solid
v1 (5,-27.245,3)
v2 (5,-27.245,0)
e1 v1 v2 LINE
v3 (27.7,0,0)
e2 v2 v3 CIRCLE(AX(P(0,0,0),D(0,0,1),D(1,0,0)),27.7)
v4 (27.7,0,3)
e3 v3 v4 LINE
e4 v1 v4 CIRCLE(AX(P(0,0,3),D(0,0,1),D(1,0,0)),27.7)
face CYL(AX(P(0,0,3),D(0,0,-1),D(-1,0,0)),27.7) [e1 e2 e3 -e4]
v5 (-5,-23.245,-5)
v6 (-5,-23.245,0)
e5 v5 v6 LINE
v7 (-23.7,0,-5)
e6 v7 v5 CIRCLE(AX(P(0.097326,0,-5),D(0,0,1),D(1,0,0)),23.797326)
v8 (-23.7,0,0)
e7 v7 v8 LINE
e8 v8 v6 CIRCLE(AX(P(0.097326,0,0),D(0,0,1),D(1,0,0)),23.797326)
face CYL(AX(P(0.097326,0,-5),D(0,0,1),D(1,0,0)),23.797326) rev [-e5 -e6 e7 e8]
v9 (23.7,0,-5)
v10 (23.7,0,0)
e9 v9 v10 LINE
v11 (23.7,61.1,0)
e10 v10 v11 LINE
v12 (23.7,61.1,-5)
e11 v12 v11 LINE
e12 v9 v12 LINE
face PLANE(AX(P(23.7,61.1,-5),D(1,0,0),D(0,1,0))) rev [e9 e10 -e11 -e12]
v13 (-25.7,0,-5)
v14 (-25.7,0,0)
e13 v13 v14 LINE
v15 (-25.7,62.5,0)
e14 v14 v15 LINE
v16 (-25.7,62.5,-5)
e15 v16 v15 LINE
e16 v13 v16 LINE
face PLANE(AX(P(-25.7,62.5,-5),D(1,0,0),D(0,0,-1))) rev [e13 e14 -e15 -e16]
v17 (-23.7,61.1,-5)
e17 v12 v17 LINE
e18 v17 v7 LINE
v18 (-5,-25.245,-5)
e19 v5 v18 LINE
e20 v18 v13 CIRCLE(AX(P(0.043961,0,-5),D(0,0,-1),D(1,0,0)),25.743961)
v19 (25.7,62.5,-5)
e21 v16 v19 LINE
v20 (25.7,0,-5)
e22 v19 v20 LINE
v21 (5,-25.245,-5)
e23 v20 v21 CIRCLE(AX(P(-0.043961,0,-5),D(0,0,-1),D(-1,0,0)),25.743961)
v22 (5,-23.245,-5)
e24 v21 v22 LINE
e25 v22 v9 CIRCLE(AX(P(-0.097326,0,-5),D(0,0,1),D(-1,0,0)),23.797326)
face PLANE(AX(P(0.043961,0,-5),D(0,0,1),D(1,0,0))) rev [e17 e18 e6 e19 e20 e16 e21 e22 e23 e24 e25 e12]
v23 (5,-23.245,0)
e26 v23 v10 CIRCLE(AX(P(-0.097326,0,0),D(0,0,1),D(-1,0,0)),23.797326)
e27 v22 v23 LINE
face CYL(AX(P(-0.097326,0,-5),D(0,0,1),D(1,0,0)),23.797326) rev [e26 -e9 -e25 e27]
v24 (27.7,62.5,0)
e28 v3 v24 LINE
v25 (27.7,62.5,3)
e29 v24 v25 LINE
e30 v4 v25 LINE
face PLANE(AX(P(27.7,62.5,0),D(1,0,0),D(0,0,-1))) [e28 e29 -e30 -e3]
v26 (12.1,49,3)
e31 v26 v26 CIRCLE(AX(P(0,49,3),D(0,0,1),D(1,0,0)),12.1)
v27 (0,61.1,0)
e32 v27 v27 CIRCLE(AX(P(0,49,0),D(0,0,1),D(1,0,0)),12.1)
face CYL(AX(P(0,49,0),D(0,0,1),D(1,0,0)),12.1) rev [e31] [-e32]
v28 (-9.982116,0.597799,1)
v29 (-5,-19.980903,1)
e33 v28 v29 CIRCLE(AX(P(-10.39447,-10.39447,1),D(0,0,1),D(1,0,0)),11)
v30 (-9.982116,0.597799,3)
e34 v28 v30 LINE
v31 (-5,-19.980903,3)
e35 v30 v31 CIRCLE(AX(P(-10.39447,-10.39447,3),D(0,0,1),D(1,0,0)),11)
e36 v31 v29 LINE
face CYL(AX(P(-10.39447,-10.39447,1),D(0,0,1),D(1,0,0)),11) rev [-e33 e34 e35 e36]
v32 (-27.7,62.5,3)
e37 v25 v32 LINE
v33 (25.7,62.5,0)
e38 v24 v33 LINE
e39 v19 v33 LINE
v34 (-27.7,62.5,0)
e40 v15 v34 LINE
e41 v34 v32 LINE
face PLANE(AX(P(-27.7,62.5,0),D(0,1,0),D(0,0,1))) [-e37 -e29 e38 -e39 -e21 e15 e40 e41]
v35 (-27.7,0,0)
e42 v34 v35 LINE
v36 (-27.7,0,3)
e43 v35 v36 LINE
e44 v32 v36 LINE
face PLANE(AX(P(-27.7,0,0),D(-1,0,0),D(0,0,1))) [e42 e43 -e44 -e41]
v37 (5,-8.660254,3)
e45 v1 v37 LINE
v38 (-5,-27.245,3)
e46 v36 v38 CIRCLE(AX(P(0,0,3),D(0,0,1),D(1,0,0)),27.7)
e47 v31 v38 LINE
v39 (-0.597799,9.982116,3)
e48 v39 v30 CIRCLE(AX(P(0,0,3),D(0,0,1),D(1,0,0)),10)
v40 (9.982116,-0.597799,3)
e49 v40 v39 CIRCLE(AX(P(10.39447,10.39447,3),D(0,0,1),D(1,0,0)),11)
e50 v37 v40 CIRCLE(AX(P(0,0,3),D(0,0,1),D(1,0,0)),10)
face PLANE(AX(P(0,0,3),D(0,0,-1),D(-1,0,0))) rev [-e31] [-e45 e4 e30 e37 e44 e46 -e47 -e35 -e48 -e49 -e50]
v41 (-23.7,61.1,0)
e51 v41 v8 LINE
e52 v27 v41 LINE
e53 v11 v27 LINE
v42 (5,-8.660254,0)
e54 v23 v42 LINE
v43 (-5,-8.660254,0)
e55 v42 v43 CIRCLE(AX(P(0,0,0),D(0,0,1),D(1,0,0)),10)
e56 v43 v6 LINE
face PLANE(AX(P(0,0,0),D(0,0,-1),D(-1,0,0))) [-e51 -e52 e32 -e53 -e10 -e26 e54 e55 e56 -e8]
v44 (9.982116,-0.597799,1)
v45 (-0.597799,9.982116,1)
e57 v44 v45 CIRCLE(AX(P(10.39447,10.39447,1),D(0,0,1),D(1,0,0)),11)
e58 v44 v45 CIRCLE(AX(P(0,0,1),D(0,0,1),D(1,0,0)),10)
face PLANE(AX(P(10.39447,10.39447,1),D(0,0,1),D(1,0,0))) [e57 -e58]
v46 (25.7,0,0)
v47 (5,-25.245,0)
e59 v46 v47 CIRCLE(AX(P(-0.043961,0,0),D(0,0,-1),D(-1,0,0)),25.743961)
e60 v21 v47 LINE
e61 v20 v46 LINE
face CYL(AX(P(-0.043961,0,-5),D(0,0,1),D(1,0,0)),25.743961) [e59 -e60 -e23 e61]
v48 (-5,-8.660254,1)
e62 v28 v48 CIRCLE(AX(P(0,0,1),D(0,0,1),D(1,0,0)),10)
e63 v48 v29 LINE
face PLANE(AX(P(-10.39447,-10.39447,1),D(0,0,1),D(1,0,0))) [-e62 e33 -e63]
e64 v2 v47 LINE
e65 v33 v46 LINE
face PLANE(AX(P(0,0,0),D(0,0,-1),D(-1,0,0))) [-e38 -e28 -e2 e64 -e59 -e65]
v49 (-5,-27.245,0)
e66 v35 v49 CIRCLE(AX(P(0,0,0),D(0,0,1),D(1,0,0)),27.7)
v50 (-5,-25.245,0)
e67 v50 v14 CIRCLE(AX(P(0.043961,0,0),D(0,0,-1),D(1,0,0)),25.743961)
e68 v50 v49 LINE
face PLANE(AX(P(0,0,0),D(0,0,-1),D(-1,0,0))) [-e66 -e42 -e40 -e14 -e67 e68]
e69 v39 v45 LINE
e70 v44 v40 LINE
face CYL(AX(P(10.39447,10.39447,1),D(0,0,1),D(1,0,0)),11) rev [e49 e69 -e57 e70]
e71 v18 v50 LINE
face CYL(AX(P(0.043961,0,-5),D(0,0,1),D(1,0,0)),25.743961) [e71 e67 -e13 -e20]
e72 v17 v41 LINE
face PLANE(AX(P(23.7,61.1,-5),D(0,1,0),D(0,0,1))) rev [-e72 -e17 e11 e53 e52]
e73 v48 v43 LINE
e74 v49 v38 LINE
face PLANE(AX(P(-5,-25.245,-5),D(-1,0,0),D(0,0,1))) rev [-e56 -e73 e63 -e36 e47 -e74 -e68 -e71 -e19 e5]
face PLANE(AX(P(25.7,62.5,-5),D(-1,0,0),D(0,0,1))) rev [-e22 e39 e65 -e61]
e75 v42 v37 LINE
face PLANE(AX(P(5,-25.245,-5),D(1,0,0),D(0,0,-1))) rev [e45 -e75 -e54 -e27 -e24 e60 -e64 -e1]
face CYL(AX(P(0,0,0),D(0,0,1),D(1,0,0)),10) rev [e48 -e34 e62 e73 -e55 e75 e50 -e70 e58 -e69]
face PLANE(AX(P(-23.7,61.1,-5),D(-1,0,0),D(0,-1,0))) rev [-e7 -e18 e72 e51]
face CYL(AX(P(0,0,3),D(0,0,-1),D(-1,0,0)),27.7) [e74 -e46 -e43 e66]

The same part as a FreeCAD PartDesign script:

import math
import FreeCAD as App
import Part
import Sketcher
from FreeCAD import Vector

doc = App.newDocument("Part")
body = doc.addObject("PartDesign::Body", "Body")

# Sketch on XY plane
sketch1 = body.newObject("Sketcher::SketchObject", "Sketch")
sketch1.AttachmentSupport = (doc.getObject("XY_Plane"), [""])
sketch1.MapMode = "FlatFace"
sketch1.addGeometry(Part.Circle(Vector(0, 0, 0), Vector(0, 0, 1), 28), False)
sketch1.addConstraint(Sketcher.Constraint("Coincident", 0, 3, -1, 1))
sketch1.addConstraint(Sketcher.Constraint("Diameter", 0, 55.4))
pad1 = body.newObject("PartDesign::Pad", "Pad")
pad1.Profile = sketch1
pad1.Length = 3

# Sketch on XY plane
sketch2 = body.newObject("Sketcher::SketchObject", "Sketch001")
sketch2.AttachmentSupport = (doc.getObject("XY_Plane"), [""])
sketch2.MapMode = "FlatFace"
sketch2.AttachmentOffset = App.Placement(Vector(0, 0, 3), App.Rotation())
sketch2.addGeometry(Part.Circle(Vector(-10, -10, 0), Vector(0, 0, 1), 11), False)
sketch2.addGeometry(Part.Circle(Vector(10, 10, 0), Vector(0, 0, 1), 11), False)
sketch2.addConstraint(Sketcher.Constraint("Equal", 0, 1))
sketch2.addConstraint(Sketcher.Constraint("Symmetric", 0, 3, 1, 3, -1, 1))
sketch2.addConstraint(Sketcher.Constraint("Diameter", 0, 22.0))
sketch2.addConstraint(Sketcher.Constraint("DistanceX", 0, 3, -1, 1, 10.39447))
sketch2.addConstraint(Sketcher.Constraint("DistanceY", 0, 3, -1, 1, 10.39447))
pocket1 = body.newObject("PartDesign::Pocket", "Pocket")
pocket1.Profile = sketch2
pocket1.Length = 2

# Sketch on XY plane
sketch3 = body.newObject("Sketcher::SketchObject", "Sketch002")
sketch3.AttachmentSupport = (doc.getObject("XY_Plane"), [""])
sketch3.MapMode = "FlatFace"
sketch3.AttachmentOffset = App.Placement(Vector(0, 0, 3), App.Rotation())
sketch3.addGeometry(Part.Circle(Vector(0, 0, 0), Vector(0, 0, 1), 10), False)
sketch3.addConstraint(Sketcher.Constraint("Coincident", 0, 3, -1, 1))
sketch3.addConstraint(Sketcher.Constraint("Diameter", 0, 20.0))
pocket2 = body.newObject("PartDesign::Pocket", "Pocket001")
pocket2.Profile = sketch3
pocket2.Length = 3

# Sketch on XY plane
sketch4 = body.newObject("Sketcher::SketchObject", "Sketch003")
sketch4.AttachmentSupport = (doc.getObject("XY_Plane"), [""])
sketch4.MapMode = "FlatFace"
sketch4.AttachmentOffset = App.Placement(Vector(0, 0, 3), App.Rotation())
sketch4.addGeometry(Part.LineSegment(Vector(-5, 0, 0), Vector(-5, -28, 0)), False)
sketch4.addGeometry(Part.LineSegment(Vector(-5, -28, 0), Vector(5, -28, 0)), False)
sketch4.addGeometry(Part.LineSegment(Vector(5, -28, 0), Vector(5, 0, 0)), False)
sketch4.addGeometry(Part.LineSegment(Vector(5, 0, 0), Vector(-5, 0, 0)), False)
sketch4.addConstraint(Sketcher.Constraint("Coincident", 0, 2, 1, 1))
sketch4.addConstraint(Sketcher.Constraint("Coincident", 1, 2, 2, 1))
sketch4.addConstraint(Sketcher.Constraint("Coincident", 2, 2, 3, 1))
sketch4.addConstraint(Sketcher.Constraint("Coincident", 3, 2, 0, 1))
sketch4.addConstraint(Sketcher.Constraint("Vertical", 0))
sketch4.addConstraint(Sketcher.Constraint("Horizontal", 1))
sketch4.addConstraint(Sketcher.Constraint("Vertical", 2))
sketch4.addConstraint(Sketcher.Constraint("Horizontal", 3))
sketch4.addConstraint(Sketcher.Constraint("Symmetric", 2, 2, 3, 2, -1, 1))
sketch4.addConstraint(Sketcher.Constraint("DistanceX", 1, 1, 1, 2, 10.0))
sketch4.addConstraint(Sketcher.Constraint("DistanceY", 0, 2, 0, 1, 27.7))
pocket3 = body.newObject("PartDesign::Pocket", "Pocket002")
pocket3.Profile = sketch4
pocket3.Length = 3
body2 = doc.addObject("PartDesign::Body", "Body001")

# Sketch on XY plane
sketch5 = body2.newObject("Sketcher::SketchObject", "Sketch004")
sketch5.AttachmentSupport = (doc.getObject("XY_Plane001"), [""])
sketch5.MapMode = "FlatFace"
sketch5.AttachmentOffset = App.Placement(Vector(0, 0, 3), App.Rotation())
sketch5.addGeometry(Part.LineSegment(Vector(-28, 62, 0), Vector(-28, 0, 0)), False)
sketch5.addGeometry(Part.ArcOfCircle(Part.Circle(Vector(0, 0, 0), Vector(0, 0, 1), 28), math.radians(0), math.radians(180)), False)
sketch5.addGeometry(Part.LineSegment(Vector(28, 0, 0), Vector(28, 62, 0)), False)
sketch5.addGeometry(Part.LineSegment(Vector(28, 62, 0), Vector(-28, 62, 0)), False)
sketch5.addGeometry(Part.Circle(Vector(0, 49, 0), Vector(0, 0, 1), 12), False)
sketch5.addConstraint(Sketcher.Constraint("Tangent", 0, 2, 1, 2))
sketch5.addConstraint(Sketcher.Constraint("Tangent", 1, 1, 2, 1))
sketch5.addConstraint(Sketcher.Constraint("Coincident", 2, 2, 3, 1))
sketch5.addConstraint(Sketcher.Constraint("Coincident", 3, 2, 0, 1))
sketch5.addConstraint(Sketcher.Constraint("Vertical", 0))
sketch5.addConstraint(Sketcher.Constraint("Vertical", 2))
sketch5.addConstraint(Sketcher.Constraint("Horizontal", 3))
sketch5.addConstraint(Sketcher.Constraint("Coincident", 1, 3, -1, 1))
sketch5.addConstraint(Sketcher.Constraint("PointOnObject", 4, 3, -2))
sketch5.addConstraint(Sketcher.Constraint("Diameter", 4, 24.2))
sketch5.addConstraint(Sketcher.Constraint("Radius", 1, 27.7))
sketch5.addConstraint(Sketcher.Constraint("DistanceY", 0, 2, 0, 1, 62.5))
sketch5.addConstraint(Sketcher.Constraint("DistanceY", -1, 1, 4, 3, 49.0))
pad2 = body2.newObject("PartDesign::Pad", "Pad001")
pad2.Profile = sketch5
pad2.Length = 3
pad2.Reversed = True
doc.recompute()

boolean = body.newObject("PartDesign::Boolean", "Boolean")
boolean.Type = "Fuse"
boolean.addObjects([body2])

# Sketch on XY plane
sketch6 = body.newObject("Sketcher::SketchObject", "Sketch005")
sketch6.AttachmentSupport = (doc.getObject("XY_Plane"), [""])
sketch6.MapMode = "FlatFace"
sketch6.addGeometry(Part.LineSegment(Vector(-25.7, 0, 0), Vector(-25.7, 62.5, 0)), False)
sketch6.addGeometry(Part.LineSegment(Vector(-25.7, 62.5, 0), Vector(25.7, 62.5, 0)), False)
sketch6.addGeometry(Part.LineSegment(Vector(25.7, 62.5, 0), Vector(25.7, 0, 0)), False)
sketch6.addGeometry(Part.ArcOfCircle(Part.Circle(Vector(0, 0, 0), Vector(0, 0, 1), 25.7), math.radians(-79), math.radians(0)), False)
sketch6.addGeometry(Part.LineSegment(Vector(5, -25.2, 0), Vector(5, -23.2, 0)), False)
sketch6.addGeometry(Part.ArcOfCircle(Part.Circle(Vector(-0.1, 0, 0), Vector(0, 0, 1), 23.8), math.radians(-78), math.radians(0)), False)
sketch6.addGeometry(Part.LineSegment(Vector(23.7, 0, 0), Vector(23.7, 61.1, 0)), False)
sketch6.addGeometry(Part.LineSegment(Vector(23.7, 61.1, 0), Vector(-23.7, 61.1, 0)), False)
sketch6.addGeometry(Part.LineSegment(Vector(-23.7, 61.1, 0), Vector(-23.7, 0, 0)), False)
sketch6.addGeometry(Part.ArcOfCircle(Part.Circle(Vector(0.1, 0, 0), Vector(0, 0, 1), 23.8), math.radians(180), math.radians(258)), False)
sketch6.addGeometry(Part.LineSegment(Vector(-5, -23.2, 0), Vector(-5, -25.2, 0)), False)
sketch6.addGeometry(Part.ArcOfCircle(Part.Circle(Vector(0, 0, 0), Vector(0, 0, 1), 25.7), math.radians(180), math.radians(259)), False)
sketch6.addConstraint(Sketcher.Constraint("Coincident", 0, 2, 1, 1))
sketch6.addConstraint(Sketcher.Constraint("Coincident", 1, 2, 2, 1))
sketch6.addConstraint(Sketcher.Constraint("Tangent", 2, 2, 3, 2))
sketch6.addConstraint(Sketcher.Constraint("Coincident", 3, 1, 4, 1))
sketch6.addConstraint(Sketcher.Constraint("Coincident", 4, 2, 5, 1))
sketch6.addConstraint(Sketcher.Constraint("Tangent", 5, 2, 6, 1))
sketch6.addConstraint(Sketcher.Constraint("Coincident", 6, 2, 7, 1))
sketch6.addConstraint(Sketcher.Constraint("Coincident", 7, 2, 8, 1))
sketch6.addConstraint(Sketcher.Constraint("Tangent", 8, 2, 9, 1))
sketch6.addConstraint(Sketcher.Constraint("Coincident", 9, 2, 10, 1))
sketch6.addConstraint(Sketcher.Constraint("Coincident", 10, 2, 11, 2))
sketch6.addConstraint(Sketcher.Constraint("Tangent", 11, 1, 0, 1))
sketch6.addConstraint(Sketcher.Constraint("Vertical", 0))
sketch6.addConstraint(Sketcher.Constraint("Horizontal", 1))
sketch6.addConstraint(Sketcher.Constraint("Vertical", 2))
sketch6.addConstraint(Sketcher.Constraint("Vertical", 4))
sketch6.addConstraint(Sketcher.Constraint("Vertical", 6))
sketch6.addConstraint(Sketcher.Constraint("Horizontal", 7))
sketch6.addConstraint(Sketcher.Constraint("Vertical", 8))
sketch6.addConstraint(Sketcher.Constraint("Vertical", 10))
sketch6.addConstraint(Sketcher.Constraint("Equal", 5, 9))
sketch6.addConstraint(Sketcher.Constraint("Equal", 3, 11))
sketch6.addConstraint(Sketcher.Constraint("Symmetric", 5, 3, 9, 3, -1, 1))
sketch6.addConstraint(Sketcher.Constraint("Symmetric", 3, 3, 11, 3, -1, 1))
sketch6.addConstraint(Sketcher.Constraint("Symmetric", 4, 2, 9, 2, -2))
sketch6.addConstraint(Sketcher.Constraint("PointOnObject", 3, 3, -1))
sketch6.addConstraint(Sketcher.Constraint("DistanceY", 4, 1, 4, 2, 2.0))
sketch6.addConstraint(Sketcher.Constraint("DistanceX", 1, 1, 1, 2, 51.4))
sketch6.addConstraint(Sketcher.Constraint("DistanceX", 7, 2, 7, 1, 47.4))
sketch6.addConstraint(Sketcher.Constraint("DistanceY", 0, 1, 0, 2, 62.5))
sketch6.addConstraint(Sketcher.Constraint("DistanceY", 6, 1, 6, 2, 61.1))
sketch6.addConstraint(Sketcher.Constraint("DistanceX", -1, 1, 3, 1, 5.0))
sketch6.addConstraint(Sketcher.Constraint("Radius", 3, 25.743961))
pad3 = body.newObject("PartDesign::Pad", "Pad002")
pad3.Profile = sketch6
pad3.Length = 5
pad3.Reversed = True

doc.recompute()
